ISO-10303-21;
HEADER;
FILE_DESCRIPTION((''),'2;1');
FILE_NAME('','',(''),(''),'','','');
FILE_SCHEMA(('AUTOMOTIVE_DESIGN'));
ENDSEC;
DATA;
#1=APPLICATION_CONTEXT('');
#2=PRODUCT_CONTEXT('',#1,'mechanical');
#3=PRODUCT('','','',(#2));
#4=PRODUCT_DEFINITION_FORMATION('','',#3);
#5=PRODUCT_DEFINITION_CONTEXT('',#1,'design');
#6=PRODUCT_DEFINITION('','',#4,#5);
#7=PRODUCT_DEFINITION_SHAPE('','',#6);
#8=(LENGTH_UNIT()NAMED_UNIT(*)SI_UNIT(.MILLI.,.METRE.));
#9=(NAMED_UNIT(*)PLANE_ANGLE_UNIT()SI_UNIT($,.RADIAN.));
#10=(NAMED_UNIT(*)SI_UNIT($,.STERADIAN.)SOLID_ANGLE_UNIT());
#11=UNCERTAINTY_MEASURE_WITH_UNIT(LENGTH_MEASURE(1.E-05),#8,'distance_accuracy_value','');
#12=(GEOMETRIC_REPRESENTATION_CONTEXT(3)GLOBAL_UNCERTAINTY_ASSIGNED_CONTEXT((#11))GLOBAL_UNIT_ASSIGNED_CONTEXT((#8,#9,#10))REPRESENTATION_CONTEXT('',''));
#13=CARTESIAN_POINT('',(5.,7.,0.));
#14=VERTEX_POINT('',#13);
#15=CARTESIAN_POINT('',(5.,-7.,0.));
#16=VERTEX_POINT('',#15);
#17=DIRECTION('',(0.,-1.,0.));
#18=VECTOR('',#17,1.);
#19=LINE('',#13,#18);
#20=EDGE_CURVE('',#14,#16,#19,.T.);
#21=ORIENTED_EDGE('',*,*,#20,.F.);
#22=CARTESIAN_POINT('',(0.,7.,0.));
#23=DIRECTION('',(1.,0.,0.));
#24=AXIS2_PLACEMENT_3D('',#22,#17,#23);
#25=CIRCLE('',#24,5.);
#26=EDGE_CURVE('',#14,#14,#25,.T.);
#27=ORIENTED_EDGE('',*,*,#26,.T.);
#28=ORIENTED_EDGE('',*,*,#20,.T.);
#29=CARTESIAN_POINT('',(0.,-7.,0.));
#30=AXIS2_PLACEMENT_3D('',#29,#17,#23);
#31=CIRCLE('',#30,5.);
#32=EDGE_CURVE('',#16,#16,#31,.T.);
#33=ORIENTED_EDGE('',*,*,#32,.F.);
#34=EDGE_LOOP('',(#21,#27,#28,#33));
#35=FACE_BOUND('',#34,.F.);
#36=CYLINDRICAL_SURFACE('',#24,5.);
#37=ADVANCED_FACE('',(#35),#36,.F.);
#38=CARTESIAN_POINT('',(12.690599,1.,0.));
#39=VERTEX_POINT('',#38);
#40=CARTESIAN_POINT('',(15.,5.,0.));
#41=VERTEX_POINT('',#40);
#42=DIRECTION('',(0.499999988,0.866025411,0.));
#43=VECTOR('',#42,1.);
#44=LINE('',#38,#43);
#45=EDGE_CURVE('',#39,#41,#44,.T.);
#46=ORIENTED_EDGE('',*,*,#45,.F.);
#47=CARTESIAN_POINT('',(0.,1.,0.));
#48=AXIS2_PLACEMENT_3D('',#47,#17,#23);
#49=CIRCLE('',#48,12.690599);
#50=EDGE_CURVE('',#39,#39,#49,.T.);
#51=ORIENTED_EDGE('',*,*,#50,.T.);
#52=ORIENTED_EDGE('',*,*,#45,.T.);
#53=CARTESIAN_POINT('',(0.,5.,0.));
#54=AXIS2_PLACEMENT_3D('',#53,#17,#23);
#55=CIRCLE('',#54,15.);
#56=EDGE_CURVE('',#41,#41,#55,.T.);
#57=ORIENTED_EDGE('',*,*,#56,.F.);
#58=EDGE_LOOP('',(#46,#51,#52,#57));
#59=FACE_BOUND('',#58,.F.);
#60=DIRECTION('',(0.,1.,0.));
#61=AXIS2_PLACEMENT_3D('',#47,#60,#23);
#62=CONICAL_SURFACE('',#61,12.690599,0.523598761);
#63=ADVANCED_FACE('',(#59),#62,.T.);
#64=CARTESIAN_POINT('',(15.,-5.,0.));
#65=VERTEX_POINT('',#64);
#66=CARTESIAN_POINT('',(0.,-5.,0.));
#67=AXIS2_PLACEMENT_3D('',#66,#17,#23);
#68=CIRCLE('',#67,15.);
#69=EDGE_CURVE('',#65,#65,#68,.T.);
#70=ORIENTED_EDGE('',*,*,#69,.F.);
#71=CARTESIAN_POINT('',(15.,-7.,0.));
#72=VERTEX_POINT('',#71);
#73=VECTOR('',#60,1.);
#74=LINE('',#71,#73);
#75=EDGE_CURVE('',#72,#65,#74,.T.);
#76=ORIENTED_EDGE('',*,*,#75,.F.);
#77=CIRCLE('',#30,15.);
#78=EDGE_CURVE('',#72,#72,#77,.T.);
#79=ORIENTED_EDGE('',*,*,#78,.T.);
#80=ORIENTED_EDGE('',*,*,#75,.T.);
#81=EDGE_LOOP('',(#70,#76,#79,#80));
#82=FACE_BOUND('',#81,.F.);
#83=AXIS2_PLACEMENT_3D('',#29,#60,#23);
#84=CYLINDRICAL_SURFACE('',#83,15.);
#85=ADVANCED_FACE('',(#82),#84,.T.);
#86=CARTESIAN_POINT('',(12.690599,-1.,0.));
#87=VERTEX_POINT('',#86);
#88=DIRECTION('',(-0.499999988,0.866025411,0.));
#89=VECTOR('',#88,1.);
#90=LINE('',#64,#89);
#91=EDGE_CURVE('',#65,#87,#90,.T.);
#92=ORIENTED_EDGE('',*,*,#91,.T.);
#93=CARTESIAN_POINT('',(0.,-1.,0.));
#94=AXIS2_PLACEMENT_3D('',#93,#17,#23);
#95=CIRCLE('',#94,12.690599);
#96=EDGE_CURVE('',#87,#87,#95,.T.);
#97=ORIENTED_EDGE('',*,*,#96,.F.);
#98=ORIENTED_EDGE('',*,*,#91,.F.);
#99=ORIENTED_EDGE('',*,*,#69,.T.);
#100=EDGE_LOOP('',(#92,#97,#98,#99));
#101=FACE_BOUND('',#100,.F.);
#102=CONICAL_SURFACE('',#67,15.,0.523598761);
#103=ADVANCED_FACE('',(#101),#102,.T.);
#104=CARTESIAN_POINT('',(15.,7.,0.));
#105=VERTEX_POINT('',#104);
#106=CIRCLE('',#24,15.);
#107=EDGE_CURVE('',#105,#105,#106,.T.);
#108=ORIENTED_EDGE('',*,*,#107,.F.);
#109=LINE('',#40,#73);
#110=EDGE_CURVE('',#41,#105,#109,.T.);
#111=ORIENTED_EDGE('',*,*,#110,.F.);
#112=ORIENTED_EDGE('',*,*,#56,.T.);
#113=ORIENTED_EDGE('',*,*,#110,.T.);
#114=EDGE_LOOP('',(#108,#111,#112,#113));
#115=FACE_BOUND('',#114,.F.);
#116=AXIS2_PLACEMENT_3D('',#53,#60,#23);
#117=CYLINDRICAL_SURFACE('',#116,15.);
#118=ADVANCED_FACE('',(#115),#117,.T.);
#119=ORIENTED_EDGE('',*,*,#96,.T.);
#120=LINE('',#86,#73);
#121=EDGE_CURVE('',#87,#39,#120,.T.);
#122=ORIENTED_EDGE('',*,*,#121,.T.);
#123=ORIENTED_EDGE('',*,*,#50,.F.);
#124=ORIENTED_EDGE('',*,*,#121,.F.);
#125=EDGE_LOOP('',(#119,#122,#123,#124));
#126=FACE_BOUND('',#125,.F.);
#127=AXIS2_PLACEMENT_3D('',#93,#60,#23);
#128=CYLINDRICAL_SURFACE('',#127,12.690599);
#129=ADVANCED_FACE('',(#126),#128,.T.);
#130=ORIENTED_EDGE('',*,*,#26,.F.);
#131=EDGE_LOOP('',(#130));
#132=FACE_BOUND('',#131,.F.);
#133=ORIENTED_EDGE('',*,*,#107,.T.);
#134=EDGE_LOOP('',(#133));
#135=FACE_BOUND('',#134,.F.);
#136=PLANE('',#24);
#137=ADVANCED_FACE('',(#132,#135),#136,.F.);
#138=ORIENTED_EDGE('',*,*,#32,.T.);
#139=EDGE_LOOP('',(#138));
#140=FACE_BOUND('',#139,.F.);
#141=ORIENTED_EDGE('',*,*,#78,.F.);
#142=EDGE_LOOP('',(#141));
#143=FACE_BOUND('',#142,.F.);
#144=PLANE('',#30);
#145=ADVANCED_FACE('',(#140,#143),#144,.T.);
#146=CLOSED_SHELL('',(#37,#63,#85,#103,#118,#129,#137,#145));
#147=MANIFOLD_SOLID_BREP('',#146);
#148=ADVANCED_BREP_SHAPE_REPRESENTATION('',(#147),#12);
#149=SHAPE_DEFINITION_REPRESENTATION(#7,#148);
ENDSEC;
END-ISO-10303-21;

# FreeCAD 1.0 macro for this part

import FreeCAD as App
import Part
import Sketcher
from FreeCAD import Vector
Q = App.Units.Quantity


def add_polygon(sketch, points):
    """Adds a closed chain of lines whose ends are joined by coincident constraints."""
    first, n = sketch.GeometryCount, len(points)
    for a, b in zip(points, points[1:] + points[:1]):
        sketch.addGeometry(Part.LineSegment(App.Vector(*a, 0), App.Vector(*b, 0)), False)
    for i in range(n):
        sketch.addConstraint(Sketcher.Constraint("Coincident", first + i, 2, first + (i + 1) % n, 1))

doc = App.newDocument("Part")
body = doc.addObject("PartDesign::Body", "Body")

# Sketch on XY plane
sketch1 = body.newObject("Sketcher::SketchObject", "Sketch")
sketch1.AttachmentSupport = (doc.getObject("XY_Plane"), [""])
sketch1.MapMode = "FlatFace"
add_polygon(sketch1, [(5, -7), (15, -7), (15, -5), (12.7, -1), (12.7, 1), (15, 5), (15, 7), (5, 7)])  # lines 0-7
sketch1.addConstraint([
    Sketcher.Constraint("Horizontal", 0),
    Sketcher.Constraint("Vertical", 1),
    Sketcher.Constraint("Vertical", 3),
    Sketcher.Constraint("Vertical", 5),
    Sketcher.Constraint("Horizontal", 6),
    Sketcher.Constraint("Vertical", 7),
    Sketcher.Constraint("Symmetric", 1, 2, 4, 2, -1),
    Sketcher.Constraint("Equal", 1, 3),
    Sketcher.Constraint("Equal", 3, 5),
    Sketcher.Constraint("Equal", 2, 4),
    Sketcher.Constraint("DistanceX", 0, 1, 0, 2, 10.0),
    Sketcher.Constraint("DistanceY", 1, 1, 1, 2, 2.0),
    Sketcher.Constraint("DistanceY", 7, 2, 7, 1, 14.0),
    Sketcher.Constraint("Angle", 2, Q("119.999999 deg")),
    Sketcher.Constraint("DistanceX", -1, 1, 0, 2, 15.0),
])
revolution = body.newObject("PartDesign::Revolution", "Revolution")
revolution.Profile = sketch1
revolution.ReferenceAxis = (sketch1, ["V_Axis"])
revolution.Angle = 360

doc.recompute()
